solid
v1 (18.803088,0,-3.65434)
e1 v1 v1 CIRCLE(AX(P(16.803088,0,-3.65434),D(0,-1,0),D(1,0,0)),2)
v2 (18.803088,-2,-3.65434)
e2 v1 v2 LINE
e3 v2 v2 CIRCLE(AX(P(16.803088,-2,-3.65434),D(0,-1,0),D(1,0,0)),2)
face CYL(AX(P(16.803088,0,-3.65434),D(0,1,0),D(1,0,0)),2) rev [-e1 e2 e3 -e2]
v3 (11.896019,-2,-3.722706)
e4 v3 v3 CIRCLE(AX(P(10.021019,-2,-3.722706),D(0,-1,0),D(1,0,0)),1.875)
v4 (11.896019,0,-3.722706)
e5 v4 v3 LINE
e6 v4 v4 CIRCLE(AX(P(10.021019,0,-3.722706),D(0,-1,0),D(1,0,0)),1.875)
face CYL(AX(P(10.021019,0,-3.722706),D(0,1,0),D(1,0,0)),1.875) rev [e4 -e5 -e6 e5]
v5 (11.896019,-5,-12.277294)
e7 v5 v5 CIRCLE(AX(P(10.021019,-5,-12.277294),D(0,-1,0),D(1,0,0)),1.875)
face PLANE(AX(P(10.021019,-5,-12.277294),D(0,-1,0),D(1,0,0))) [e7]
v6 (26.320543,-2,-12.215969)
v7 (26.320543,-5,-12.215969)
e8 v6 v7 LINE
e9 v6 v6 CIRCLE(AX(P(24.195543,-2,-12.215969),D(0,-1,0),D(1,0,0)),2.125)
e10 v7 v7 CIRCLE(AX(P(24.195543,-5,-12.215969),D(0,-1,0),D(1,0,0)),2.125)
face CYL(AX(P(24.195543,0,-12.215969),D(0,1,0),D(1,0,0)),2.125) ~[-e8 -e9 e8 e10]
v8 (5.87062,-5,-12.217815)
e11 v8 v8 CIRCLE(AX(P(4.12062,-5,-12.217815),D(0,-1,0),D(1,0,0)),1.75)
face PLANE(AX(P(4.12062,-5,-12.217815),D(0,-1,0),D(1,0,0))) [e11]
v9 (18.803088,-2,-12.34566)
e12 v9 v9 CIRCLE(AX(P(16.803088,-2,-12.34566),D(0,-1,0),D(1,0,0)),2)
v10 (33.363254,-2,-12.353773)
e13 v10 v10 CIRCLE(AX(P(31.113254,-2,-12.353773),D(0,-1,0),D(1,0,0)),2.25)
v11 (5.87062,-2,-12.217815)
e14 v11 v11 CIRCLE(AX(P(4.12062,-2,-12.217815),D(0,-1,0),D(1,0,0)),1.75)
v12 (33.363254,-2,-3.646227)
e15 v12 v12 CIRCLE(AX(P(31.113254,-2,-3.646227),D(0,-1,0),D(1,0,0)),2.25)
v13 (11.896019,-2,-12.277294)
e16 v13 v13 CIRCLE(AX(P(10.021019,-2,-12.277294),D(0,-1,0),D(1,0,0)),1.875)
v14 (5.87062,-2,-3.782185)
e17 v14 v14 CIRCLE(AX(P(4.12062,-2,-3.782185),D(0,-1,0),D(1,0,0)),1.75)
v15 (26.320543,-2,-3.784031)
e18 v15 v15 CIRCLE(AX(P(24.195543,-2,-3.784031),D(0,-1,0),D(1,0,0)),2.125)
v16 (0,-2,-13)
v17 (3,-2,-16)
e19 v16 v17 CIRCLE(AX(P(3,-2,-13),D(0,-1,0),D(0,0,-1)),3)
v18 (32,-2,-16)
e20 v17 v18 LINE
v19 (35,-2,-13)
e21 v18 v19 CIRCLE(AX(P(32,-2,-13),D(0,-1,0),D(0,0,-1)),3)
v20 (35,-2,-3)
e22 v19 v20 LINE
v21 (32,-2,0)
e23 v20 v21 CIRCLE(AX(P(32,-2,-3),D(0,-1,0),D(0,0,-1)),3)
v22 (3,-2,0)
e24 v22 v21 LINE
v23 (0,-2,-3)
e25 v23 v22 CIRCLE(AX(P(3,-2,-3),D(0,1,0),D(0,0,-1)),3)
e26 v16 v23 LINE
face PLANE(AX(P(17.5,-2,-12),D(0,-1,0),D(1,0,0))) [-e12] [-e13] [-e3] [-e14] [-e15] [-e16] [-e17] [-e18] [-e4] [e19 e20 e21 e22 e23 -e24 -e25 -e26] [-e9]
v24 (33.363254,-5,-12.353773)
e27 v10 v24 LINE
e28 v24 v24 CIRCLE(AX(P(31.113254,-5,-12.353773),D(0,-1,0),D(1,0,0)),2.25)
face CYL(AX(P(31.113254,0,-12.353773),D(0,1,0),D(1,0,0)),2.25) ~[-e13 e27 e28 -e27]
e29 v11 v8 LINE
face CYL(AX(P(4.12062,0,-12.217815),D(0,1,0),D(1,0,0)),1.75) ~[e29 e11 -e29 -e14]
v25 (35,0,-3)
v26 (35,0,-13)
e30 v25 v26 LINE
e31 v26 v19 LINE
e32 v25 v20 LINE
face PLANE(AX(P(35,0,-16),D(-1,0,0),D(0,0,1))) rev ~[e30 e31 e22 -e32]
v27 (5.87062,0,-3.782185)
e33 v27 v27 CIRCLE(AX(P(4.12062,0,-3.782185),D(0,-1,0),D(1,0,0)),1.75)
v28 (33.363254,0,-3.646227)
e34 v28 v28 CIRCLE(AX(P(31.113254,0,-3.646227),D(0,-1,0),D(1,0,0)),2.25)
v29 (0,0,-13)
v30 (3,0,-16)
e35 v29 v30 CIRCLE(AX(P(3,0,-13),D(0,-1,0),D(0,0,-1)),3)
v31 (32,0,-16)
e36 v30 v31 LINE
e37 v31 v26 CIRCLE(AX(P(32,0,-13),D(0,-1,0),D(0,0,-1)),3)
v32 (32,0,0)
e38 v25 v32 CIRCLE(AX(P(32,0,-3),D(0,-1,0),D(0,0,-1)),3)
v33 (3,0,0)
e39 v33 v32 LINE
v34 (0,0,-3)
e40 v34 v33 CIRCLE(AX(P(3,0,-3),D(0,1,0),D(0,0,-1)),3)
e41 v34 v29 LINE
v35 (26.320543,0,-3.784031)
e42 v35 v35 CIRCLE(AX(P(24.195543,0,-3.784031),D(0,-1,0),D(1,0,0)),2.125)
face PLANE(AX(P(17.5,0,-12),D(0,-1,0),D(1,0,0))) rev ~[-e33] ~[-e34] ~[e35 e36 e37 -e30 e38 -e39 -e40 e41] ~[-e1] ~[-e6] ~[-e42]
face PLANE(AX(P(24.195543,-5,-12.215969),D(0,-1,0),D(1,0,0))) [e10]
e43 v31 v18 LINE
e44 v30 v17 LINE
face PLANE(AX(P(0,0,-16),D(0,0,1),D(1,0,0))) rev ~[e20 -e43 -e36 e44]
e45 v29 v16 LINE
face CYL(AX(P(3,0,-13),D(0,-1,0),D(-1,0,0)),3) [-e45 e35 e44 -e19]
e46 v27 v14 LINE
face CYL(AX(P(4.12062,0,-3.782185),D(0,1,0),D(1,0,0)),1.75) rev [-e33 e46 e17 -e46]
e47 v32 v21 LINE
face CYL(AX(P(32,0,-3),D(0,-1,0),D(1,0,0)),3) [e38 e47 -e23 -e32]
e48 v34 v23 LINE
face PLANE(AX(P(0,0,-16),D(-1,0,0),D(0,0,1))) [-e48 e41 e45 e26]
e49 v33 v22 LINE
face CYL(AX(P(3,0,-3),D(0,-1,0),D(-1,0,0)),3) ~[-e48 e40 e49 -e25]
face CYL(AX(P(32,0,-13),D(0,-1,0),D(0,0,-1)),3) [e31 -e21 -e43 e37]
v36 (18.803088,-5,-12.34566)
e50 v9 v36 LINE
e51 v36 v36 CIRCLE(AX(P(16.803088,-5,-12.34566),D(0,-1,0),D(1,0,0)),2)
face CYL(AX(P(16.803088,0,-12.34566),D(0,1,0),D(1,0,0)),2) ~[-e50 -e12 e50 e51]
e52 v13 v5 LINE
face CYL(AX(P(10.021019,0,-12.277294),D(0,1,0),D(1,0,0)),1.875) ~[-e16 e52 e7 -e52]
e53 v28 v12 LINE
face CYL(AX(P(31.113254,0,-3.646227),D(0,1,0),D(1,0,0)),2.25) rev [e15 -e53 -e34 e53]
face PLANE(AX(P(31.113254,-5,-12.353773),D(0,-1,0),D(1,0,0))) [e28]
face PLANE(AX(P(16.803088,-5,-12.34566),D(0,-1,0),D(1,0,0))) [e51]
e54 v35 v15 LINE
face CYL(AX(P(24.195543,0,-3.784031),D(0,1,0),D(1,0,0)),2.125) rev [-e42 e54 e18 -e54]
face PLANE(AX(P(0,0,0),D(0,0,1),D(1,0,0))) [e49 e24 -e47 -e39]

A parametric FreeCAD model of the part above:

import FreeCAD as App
import Part
import Sketcher
from FreeCAD import Vector
Q = App.Units.Quantity


def edges_at(feature, points):
    """Names of the edges that pass closest to the given points."""
    edges = feature.Shape.Edges
    near = lambda p: min(range(len(edges)), key=lambda i: edges[i].distToShape(Part.Vertex(*p))[0])
    return sorted({f"Edge{near(p) + 1}" for p in points})


def add_polygon(sketch, points):
    """Adds a closed chain of lines whose ends are joined by coincident constraints."""
    first, n = sketch.GeometryCount, len(points)
    for a, b in zip(points, points[1:] + points[:1]):
        sketch.addGeometry(Part.LineSegment(App.Vector(*a, 0), App.Vector(*b, 0)), False)
    for i in range(n):
        sketch.addConstraint(Sketcher.Constraint("Coincident", first + i, 2, first + (i + 1) % n, 1))

doc = App.newDocument("Part")
body = doc.addObject("PartDesign::Body", "Body")

sketch1 = body.newObject("Sketcher::SketchObject", "Sketch")
sketch1.AttachmentSupport = (doc.getObject("XZ_Plane"), [""])
sketch1.MapMode = "FlatFace"
add_polygon(sketch1, [(0, 0), (0, -8), (35, -8), (35, 0)])
sketch1.addGeometry(Part.Circle(Vector(4.1, -3.8, 0), Vector(0, 0, 1), 1.8), False)
sketch1.addGeometry(Part.Circle(Vector(10, -3.7, 0), Vector(0, 0, 1), 1.9), False)
sketch1.addGeometry(Part.Circle(Vector(16.8, -3.7, 0), Vector(0, 0, 1), 2), False)
sketch1.addGeometry(Part.Circle(Vector(24.2, -3.8, 0), Vector(0, 0, 1), 2.1), False)
sketch1.addGeometry(Part.Circle(Vector(31.1, -3.6, 0), Vector(0, 0, 1), 2.2), False)
sketch1.addConstraint([
    Sketcher.Constraint("Vertical", 0),
    Sketcher.Constraint("Horizontal", 1),
    Sketcher.Constraint("Vertical", 2),
    Sketcher.Constraint("Horizontal", 3),
    Sketcher.Constraint("Coincident", 3, 2, -1, 1),
    Sketcher.Constraint("Diameter", 6, Q("4 mm")),
    Sketcher.Constraint("Diameter", 4, Q("3.5 mm")),
    Sketcher.Constraint("Diameter", 8, Q("4.5 mm")),
    Sketcher.Constraint("Diameter", 5, Q("3.75 mm")),
    Sketcher.Constraint("Diameter", 7, Q("4.25 mm")),
    Sketcher.Constraint("DistanceX", 1, 1, 1, 2, Q("35 mm")),
    Sketcher.Constraint("DistanceY", 0, 2, 0, 1, Q("8 mm")),
    Sketcher.Constraint("DistanceX", 4, 3, 5, 3, Q("5.900399 mm")),
    Sketcher.Constraint("DistanceX", -1, 1, 4, 3, Q("4.12062 mm")),
    Sketcher.Constraint("DistanceY", 6, 3, -1, 1, Q("3.65434 mm")),
    Sketcher.Constraint("DistanceY", 7, 3, -1, 1, Q("3.784031 mm")),
    Sketcher.Constraint("DistanceY", 4, 3, 5, 3, Q("0.059479 mm")),
    Sketcher.Constraint("DistanceX", 5, 3, 6, 3, Q("6.782069 mm")),
    Sketcher.Constraint("DistanceX", 7, 3, 8, 3, Q("6.917711 mm")),
    Sketcher.Constraint("DistanceY", 5, 3, 8, 3, Q("0.076479 mm")),
    Sketcher.Constraint("DistanceY", 4, 3, -1, 1, Q("3.782185 mm")),
    Sketcher.Constraint("DistanceX", -1, 1, 7, 3, Q("24.195543 mm")),
])
pad1 = body.newObject("PartDesign::Pad", "Pad")
pad1.Profile = sketch1
pad1.Length = 2

sketch2 = body.newObject("Sketcher::SketchObject", "Sketch001")
sketch2.AttachmentSupport = (doc.getObject("XZ_Plane"), [""])
sketch2.MapMode = "FlatFace"
add_polygon(sketch2, [(0, -8), (0, -16), (35, -16), (35, -8)])
sketch2.addGeometry(Part.Circle(Vector(31.1, -12.4, 0), Vector(0, 0, 1), 2.2), False)
sketch2.addGeometry(Part.Circle(Vector(4.1, -12.2, 0), Vector(0, 0, 1), 1.8), False)
sketch2.addGeometry(Part.Circle(Vector(10, -12.3, 0), Vector(0, 0, 1), 1.9), False)
sketch2.addGeometry(Part.Circle(Vector(16.8, -12.3, 0), Vector(0, 0, 1), 2), False)
sketch2.addGeometry(Part.Circle(Vector(24.2, -12.2, 0), Vector(0, 0, 1), 2.1), False)
sketch2.addConstraint([
    Sketcher.Constraint("Vertical", 0),
    Sketcher.Constraint("Horizontal", 1),
    Sketcher.Constraint("Vertical", 2),
    Sketcher.Constraint("Horizontal", 3),
    Sketcher.Constraint("PointOnObject", 0, 2, -2),
    Sketcher.Constraint("Diameter", 7, Q("4 mm")),
    Sketcher.Constraint("Diameter", 4, Q("4.5 mm")),
    Sketcher.Constraint("Diameter", 5, Q("3.5 mm")),
    Sketcher.Constraint("Diameter", 6, Q("3.75 mm")),
    Sketcher.Constraint("Diameter", 8, Q("4.25 mm")),
    Sketcher.Constraint("DistanceX", 1, 1, 1, 2, Q("35 mm")),
    Sketcher.Constraint("DistanceY", 0, 2, 0, 1, Q("8 mm")),
    Sketcher.Constraint("DistanceY", 0, 2, -1, 1, Q("16 mm")),
    Sketcher.Constraint("DistanceX", 5, 3, 6, 3, Q("5.900399 mm")),
    Sketcher.Constraint("DistanceX", -1, 1, 5, 3, Q("4.12062 mm")),
    Sketcher.Constraint("DistanceY", 7, 3, -1, 1, Q("12.34566 mm")),
    Sketcher.Constraint("DistanceY", 8, 3, -1, 1, Q("12.215969 mm")),
    Sketcher.Constraint("DistanceY", 4, 3, 5, 3, Q("0.135958 mm")),
    Sketcher.Constraint("DistanceY", 6, 3, 5, 3, Q("0.059479 mm")),
    Sketcher.Constraint("DistanceX", 6, 3, 7, 3, Q("6.782069 mm")),
    Sketcher.Constraint("DistanceX", 8, 3, 4, 3, Q("6.917711 mm")),
    Sketcher.Constraint("DistanceX", -1, 1, 4, 3, Q("31.113254 mm")),
    Sketcher.Constraint("DistanceY", 4, 3, -1, 1, Q("12.353773 mm")),
])
pad2 = body.newObject("PartDesign::Pad", "Pad001")
pad2.Profile = sketch2
pad2.Length = 2

sketch3 = body.newObject("Sketcher::SketchObject", "Sketch002")
sketch3.AttachmentSupport = (doc.getObject("XZ_Plane"), [""])
sketch3.MapMode = "FlatFace"
sketch3.addGeometry([
    Part.Circle(Vector(31.1, -12.4, 0), Vector(0, 0, 1), 2.2),
    Part.Circle(Vector(24.2, -12.2, 0), Vector(0, 0, 1), 2.1),
    Part.Circle(Vector(16.8, -12.3, 0), Vector(0, 0, 1), 2),
    Part.Circle(Vector(10, -12.3, 0), Vector(0, 0, 1), 1.9),
    Part.Circle(Vector(4.1, -12.2, 0), Vector(0, 0, 1), 1.8),
], False)
sketch3.addConstraint([
    Sketcher.Constraint("Diameter", 2, Q("4 mm")),
    Sketcher.Constraint("Diameter", 0, Q("4.5 mm")),
    Sketcher.Constraint("Diameter", 4, Q("3.5 mm")),
    Sketcher.Constraint("Diameter", 1, Q("4.25 mm")),
    Sketcher.Constraint("Diameter", 3, Q("3.75 mm")),
    Sketcher.Constraint("DistanceX", 4, 3, 3, 3, Q("5.900399 mm")),
    Sketcher.Constraint("DistanceY", 1, 3, -1, 1, Q("12.215969 mm")),
    Sketcher.Constraint("DistanceY", 2, 3, -1, 1, Q("12.34566 mm")),
    Sketcher.Constraint("DistanceX", -1, 1, 3, 3, Q("10.021019 mm")),
    Sketcher.Constraint("DistanceX", 1, 3, 0, 3, Q("6.917711 mm")),
    Sketcher.Constraint("DistanceX", 3, 3, 2, 3, Q("6.782069 mm")),
    Sketcher.Constraint("DistanceY", 0, 3, 3, 3, Q("0.076479 mm")),
    Sketcher.Constraint("DistanceY", 3, 3, 4, 3, Q("0.059479 mm")),
    Sketcher.Constraint("DistanceX", -1, 1, 0, 3, Q("31.113254 mm")),
    Sketcher.Constraint("DistanceY", 0, 3, -1, 1, Q("12.353773 mm")),
])
pad3 = body.newObject("PartDesign::Pad", "Pad002")
pad3.Profile = sketch3
pad3.Length = 5
doc.recompute()

fillet = body.newObject("PartDesign::Fillet", "Fillet")
fillet.Base = (pad3, edges_at(pad3, [
    (0, -1, 0),
    (0, -1, -16),
    (35, -1, -16),
    (35, -1, 0),
]))
fillet.Radius = 3

doc.recompute()
